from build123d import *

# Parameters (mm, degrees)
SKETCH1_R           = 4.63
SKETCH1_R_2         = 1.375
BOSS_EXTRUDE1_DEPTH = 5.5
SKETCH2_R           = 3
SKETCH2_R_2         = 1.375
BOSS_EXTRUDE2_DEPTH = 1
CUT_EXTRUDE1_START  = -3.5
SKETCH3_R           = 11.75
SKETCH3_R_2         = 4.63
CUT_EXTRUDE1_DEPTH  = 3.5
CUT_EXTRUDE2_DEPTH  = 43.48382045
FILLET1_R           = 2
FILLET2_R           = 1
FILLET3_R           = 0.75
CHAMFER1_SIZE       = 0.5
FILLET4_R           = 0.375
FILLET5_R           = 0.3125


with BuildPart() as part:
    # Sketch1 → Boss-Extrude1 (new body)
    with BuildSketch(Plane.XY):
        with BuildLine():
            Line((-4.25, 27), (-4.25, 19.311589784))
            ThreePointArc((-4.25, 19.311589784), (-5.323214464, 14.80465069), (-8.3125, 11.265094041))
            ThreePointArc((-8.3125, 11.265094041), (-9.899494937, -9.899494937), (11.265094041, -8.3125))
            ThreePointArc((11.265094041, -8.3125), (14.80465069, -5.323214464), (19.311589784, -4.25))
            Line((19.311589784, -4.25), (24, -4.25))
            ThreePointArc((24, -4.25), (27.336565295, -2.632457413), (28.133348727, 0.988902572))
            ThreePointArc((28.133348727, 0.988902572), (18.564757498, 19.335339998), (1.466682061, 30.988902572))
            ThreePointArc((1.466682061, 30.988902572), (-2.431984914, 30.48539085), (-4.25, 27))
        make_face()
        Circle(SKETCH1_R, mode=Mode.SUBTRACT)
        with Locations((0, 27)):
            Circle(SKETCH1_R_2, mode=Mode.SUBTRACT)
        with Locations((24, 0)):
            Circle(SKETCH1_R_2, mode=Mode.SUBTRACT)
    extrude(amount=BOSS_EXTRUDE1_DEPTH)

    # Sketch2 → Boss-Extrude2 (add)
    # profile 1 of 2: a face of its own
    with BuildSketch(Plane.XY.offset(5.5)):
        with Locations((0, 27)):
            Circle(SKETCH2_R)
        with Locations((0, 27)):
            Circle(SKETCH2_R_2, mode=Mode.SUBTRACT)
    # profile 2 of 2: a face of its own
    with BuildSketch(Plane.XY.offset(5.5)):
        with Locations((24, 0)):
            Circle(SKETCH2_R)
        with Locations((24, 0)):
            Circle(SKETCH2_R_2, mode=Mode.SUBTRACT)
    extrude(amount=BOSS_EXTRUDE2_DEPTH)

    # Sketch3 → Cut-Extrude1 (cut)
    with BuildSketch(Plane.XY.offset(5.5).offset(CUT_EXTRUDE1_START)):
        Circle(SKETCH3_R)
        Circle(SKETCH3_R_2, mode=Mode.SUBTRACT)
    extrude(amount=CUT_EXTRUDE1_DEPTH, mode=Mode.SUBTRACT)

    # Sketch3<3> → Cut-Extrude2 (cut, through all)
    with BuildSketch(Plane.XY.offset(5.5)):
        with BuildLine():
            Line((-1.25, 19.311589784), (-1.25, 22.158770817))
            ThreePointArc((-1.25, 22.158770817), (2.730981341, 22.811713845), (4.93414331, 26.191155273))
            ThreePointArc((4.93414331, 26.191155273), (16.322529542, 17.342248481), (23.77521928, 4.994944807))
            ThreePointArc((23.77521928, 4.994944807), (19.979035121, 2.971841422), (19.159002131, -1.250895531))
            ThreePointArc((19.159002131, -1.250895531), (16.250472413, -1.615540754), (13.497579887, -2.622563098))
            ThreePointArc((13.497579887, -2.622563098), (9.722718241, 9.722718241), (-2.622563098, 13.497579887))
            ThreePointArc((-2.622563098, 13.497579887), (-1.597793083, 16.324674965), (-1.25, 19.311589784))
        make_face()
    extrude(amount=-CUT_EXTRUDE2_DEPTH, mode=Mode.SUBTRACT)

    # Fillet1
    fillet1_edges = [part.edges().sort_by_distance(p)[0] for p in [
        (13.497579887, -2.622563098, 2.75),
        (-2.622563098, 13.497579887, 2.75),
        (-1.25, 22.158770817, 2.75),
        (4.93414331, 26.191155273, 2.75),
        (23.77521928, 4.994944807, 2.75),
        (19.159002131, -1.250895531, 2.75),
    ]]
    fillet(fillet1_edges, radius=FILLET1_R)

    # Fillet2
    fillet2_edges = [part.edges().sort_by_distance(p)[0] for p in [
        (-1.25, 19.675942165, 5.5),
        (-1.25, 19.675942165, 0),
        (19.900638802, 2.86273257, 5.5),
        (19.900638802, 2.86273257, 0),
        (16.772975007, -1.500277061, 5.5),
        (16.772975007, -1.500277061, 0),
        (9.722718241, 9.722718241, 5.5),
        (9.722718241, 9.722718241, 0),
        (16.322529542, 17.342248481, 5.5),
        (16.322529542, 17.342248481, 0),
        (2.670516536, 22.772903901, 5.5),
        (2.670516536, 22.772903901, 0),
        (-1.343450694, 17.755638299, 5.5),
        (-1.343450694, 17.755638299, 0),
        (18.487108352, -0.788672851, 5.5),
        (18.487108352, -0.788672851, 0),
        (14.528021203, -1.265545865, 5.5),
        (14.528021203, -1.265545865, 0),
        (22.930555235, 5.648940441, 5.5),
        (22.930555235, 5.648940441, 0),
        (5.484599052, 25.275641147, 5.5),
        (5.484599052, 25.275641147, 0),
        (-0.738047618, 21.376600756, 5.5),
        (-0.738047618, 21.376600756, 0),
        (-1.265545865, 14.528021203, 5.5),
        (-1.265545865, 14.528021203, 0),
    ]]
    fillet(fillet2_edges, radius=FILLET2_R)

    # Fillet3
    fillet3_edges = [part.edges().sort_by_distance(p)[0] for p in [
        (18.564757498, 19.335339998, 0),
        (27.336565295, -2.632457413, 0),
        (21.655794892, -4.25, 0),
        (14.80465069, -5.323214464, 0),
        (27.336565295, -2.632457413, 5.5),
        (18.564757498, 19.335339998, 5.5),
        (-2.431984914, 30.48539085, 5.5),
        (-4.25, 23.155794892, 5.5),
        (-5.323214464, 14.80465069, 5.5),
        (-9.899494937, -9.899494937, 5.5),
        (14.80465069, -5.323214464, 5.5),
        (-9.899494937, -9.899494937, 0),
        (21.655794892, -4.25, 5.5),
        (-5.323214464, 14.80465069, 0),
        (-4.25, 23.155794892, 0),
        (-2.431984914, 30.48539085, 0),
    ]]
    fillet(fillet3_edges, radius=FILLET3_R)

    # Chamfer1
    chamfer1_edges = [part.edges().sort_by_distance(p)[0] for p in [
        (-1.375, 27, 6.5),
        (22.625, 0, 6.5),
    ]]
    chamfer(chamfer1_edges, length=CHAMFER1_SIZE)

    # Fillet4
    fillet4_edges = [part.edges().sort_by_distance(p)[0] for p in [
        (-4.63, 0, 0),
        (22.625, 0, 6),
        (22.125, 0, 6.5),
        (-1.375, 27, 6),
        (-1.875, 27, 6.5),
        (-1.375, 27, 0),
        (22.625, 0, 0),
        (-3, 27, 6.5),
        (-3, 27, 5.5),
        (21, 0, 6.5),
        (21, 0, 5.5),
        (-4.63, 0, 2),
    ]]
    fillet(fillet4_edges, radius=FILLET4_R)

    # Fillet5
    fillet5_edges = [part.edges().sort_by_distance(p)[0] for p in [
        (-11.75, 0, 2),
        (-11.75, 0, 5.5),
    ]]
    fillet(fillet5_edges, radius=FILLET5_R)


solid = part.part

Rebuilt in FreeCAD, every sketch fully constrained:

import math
import FreeCAD as App
import Part
import Sketcher
from FreeCAD import Vector
Q = App.Units.Quantity


def edges_at(feature, points):
    """Names of the edges that pass closest to the given points."""
    edges = feature.Shape.Edges
    near = lambda p: min(range(len(edges)), key=lambda i: edges[i].distToShape(Part.Vertex(*p))[0])
    return sorted({f"Edge{near(p) + 1}" for p in points})

doc = App.newDocument("Part")
body = doc.addObject("PartDesign::Body", "Body")

sketch1 = doc.addObject("Sketcher::SketchObject", "Sketch")
body.addObject(sketch1)
sketch1.AttachmentSupport = (doc.XY_Plane, [""])
sketch1.MapMode = "FlatFace"
sketch1.addGeometry(Part.LineSegment(Vector(-4.2, 27, 0), Vector(-4.2, 19.3, 0)), False)
sketch1.addGeometry(Part.ArcOfCircle(Part.Circle(Vector(-14.2, 19.3, 0), Vector(0, 0, 1), 10), math.radians(-54), math.radians(0)), False)
sketch1.addGeometry(Part.ArcOfCircle(Part.Circle(Vector(0, 0, 0), Vector(0, 0, 1), 14), math.radians(126), math.radians(324)), False)
sketch1.addGeometry(Part.ArcOfCircle(Part.Circle(Vector(19.3, -14.2, 0), Vector(0, 0, 1), 10), math.radians(90), math.radians(144)), False)
sketch1.addGeometry(Part.LineSegment(Vector(19.3, -4.2, 0), Vector(24, -4.2, 0)), False)
sketch1.addGeometry(Part.ArcOfCircle(Part.Circle(Vector(24, 0, 0), Vector(0, 0, 1), 4.2), math.radians(-90), math.radians(13)), False)
sketch1.addGeometry(Part.ArcOfCircle(Part.Circle(Vector(-13.2, -8.9, 0), Vector(0, 0, 1), 42.5), math.radians(13), math.radians(70)), False)
sketch1.addGeometry(Part.ArcOfCircle(Part.Circle(Vector(0, 27, 0), Vector(0, 0, 1), 4.2), math.radians(70), math.radians(180)), False)
sketch1.addGeometry(Part.Circle(Vector(0, 0, 0), Vector(0, 0, 1), 4.6), False)
sketch1.addGeometry(Part.Circle(Vector(24, 0, 0), Vector(0, 0, 1), 1.4), False)
sketch1.addGeometry(Part.Circle(Vector(0, 27, 0), Vector(0, 0, 1), 1.4), False)
sketch1.addConstraint(Sketcher.Constraint("Tangent", 0, 2, 1, 2))
sketch1.addConstraint(Sketcher.Constraint("Tangent", 1, 1, 2, 1))
sketch1.addConstraint(Sketcher.Constraint("Tangent", 2, 2, 3, 2))
sketch1.addConstraint(Sketcher.Constraint("Tangent", 3, 1, 4, 1))
sketch1.addConstraint(Sketcher.Constraint("Tangent", 4, 2, 5, 1))
sketch1.addConstraint(Sketcher.Constraint("Tangent", 5, 2, 6, 1))
sketch1.addConstraint(Sketcher.Constraint("Tangent", 6, 2, 7, 1))
sketch1.addConstraint(Sketcher.Constraint("Tangent", 7, 2, 0, 1))
sketch1.addConstraint(Sketcher.Constraint("Vertical", 0))
sketch1.addConstraint(Sketcher.Constraint("Horizontal", 4))
sketch1.addConstraint(Sketcher.Constraint("Coincident", 2, 3, -1, 1))
sketch1.addConstraint(Sketcher.Constraint("Coincident", 8, 3, -1, 1))
sketch1.addConstraint(Sketcher.Constraint("Coincident", 9, 3, 5, 3))
sketch1.addConstraint(Sketcher.Constraint("Coincident", 10, 3, 7, 3))
sketch1.addConstraint(Sketcher.Constraint("Equal", 1, 3))
sketch1.addConstraint(Sketcher.Constraint("Equal", 5, 7))
sketch1.addConstraint(Sketcher.Constraint("Equal", 9, 10))
sketch1.addConstraint(Sketcher.Constraint("PointOnObject", 5, 3, -1))
sketch1.addConstraint(Sketcher.Constraint("PointOnObject", 7, 3, -2))
sketch1.addConstraint(Sketcher.Constraint("Radius", 1, Q("10 mm")))
sketch1.addConstraint(Sketcher.Constraint("Radius", 2, Q("14 mm")))
sketch1.addConstraint(Sketcher.Constraint("Radius", 6, Q("42.5 mm")))
sketch1.addConstraint(Sketcher.Constraint("Diameter", 8, Q("9.26 mm")))
sketch1.addConstraint(Sketcher.Constraint("Diameter", 9, Q("2.75 mm")))
sketch1.addConstraint(Sketcher.Constraint("Radius", 5, Q("4.25 mm")))
sketch1.addConstraint(Sketcher.Constraint("DistanceX", -1, 1, 5, 3, Q("24 mm")))
sketch1.addConstraint(Sketcher.Constraint("DistanceY", -1, 1, 7, 3, Q("27 mm")))
pad1 = doc.addObject("PartDesign::Pad", "Pad")
body.addObject(pad1)
pad1.Profile = sketch1
pad1.Length = 5.5

sketch2 = doc.addObject("Sketcher::SketchObject", "Sketch001")
body.addObject(sketch2)
sketch2.AttachmentSupport = (doc.XY_Plane, [""])
sketch2.MapMode = "FlatFace"
sketch2.AttachmentOffset = App.Placement(Vector(0, 0, 5.5), App.Rotation())
sketch2.addGeometry(Part.Circle(Vector(0, 27, 0), Vector(0, 0, 1), 3), False)
sketch2.addGeometry(Part.Circle(Vector(0, 27, 0), Vector(0, 0, 1), 1.4), False)
sketch2.addGeometry(Part.Circle(Vector(24, 0, 0), Vector(0, 0, 1), 3), False)
sketch2.addGeometry(Part.Circle(Vector(24, 0, 0), Vector(0, 0, 1), 1.4), False)
sketch2.addConstraint(Sketcher.Constraint("Coincident", 1, 3, 0, 3))
sketch2.addConstraint(Sketcher.Constraint("Coincident", 3, 3, 2, 3))
sketch2.addConstraint(Sketcher.Constraint("Equal", 0, 2))
sketch2.addConstraint(Sketcher.Constraint("Equal", 1, 3))
sketch2.addConstraint(Sketcher.Constraint("PointOnObject", 0, 3, -2))
sketch2.addConstraint(Sketcher.Constraint("PointOnObject", 2, 3, -1))
sketch2.addConstraint(Sketcher.Constraint("Diameter", 0, Q("6 mm")))
sketch2.addConstraint(Sketcher.Constraint("Diameter", 1, Q("2.75 mm")))
sketch2.addConstraint(Sketcher.Constraint("DistanceY", -1, 1, 0, 3, Q("27 mm")))
sketch2.addConstraint(Sketcher.Constraint("DistanceX", -1, 1, 2, 3, Q("24 mm")))
pad2 = doc.addObject("PartDesign::Pad", "Pad001")
body.addObject(pad2)
pad2.Profile = sketch2
pad2.Length = 1

sketch3 = doc.addObject("Sketcher::SketchObject", "Sketch002")
body.addObject(sketch3)
sketch3.AttachmentSupport = (doc.XY_Plane, [""])
sketch3.MapMode = "FlatFace"
sketch3.AttachmentOffset = App.Placement(Vector(0, 0, 2), App.Rotation())
sketch3.addGeometry(Part.Circle(Vector(0, 0, 0), Vector(0, 0, 1), 11.8), False)
sketch3.addGeometry(Part.Circle(Vector(0, 0, 0), Vector(0, 0, 1), 4.6), False)
sketch3.addConstraint(Sketcher.Constraint("Coincident", 0, 3, -1, 1))
sketch3.addConstraint(Sketcher.Constraint("Coincident", 1, 3, -1, 1))
sketch3.addConstraint(Sketcher.Constraint("Diameter", 0, Q("23.5 mm")))
sketch3.addConstraint(Sketcher.Constraint("Diameter", 1, Q("9.26 mm")))
pocket1 = doc.addObject("PartDesign::Pocket", "Pocket")
body.addObject(pocket1)
pocket1.Profile = sketch3
pocket1.Length = 3.5
pocket1.Reversed = True

sketch4 = doc.addObject("Sketcher::SketchObject", "Sketch003")
body.addObject(sketch4)
sketch4.AttachmentSupport = (doc.XY_Plane, [""])
sketch4.MapMode = "FlatFace"
sketch4.AttachmentOffset = App.Placement(Vector(0, 0, 5.5), App.Rotation())
sketch4.addGeometry(Part.LineSegment(Vector(-1.2, 22.2, 0), Vector(-1.2, 19.3, 0)), False)
sketch4.addGeometry(Part.ArcOfCircle(Part.Circle(Vector(-14.2, 19.3, 0), Vector(0, 0, 1), 13), math.radians(-27), math.radians(0)), False)
sketch4.addGeometry(Part.ArcOfCircle(Part.Circle(Vector(0, 0, 0), Vector(0, 0, 1), 13.8), math.radians(-11), math.radians(101)), False)
sketch4.addGeometry(Part.ArcOfCircle(Part.Circle(Vector(19.3, -14.2, 0), Vector(0, 0, 1), 13), math.radians(91), math.radians(117)), False)
sketch4.addGeometry(Part.ArcOfCircle(Part.Circle(Vector(24, 0, 0), Vector(0, 0, 1), 5), math.radians(93), math.radians(194)), False)
sketch4.addGeometry(Part.ArcOfCircle(Part.Circle(Vector(-13.2, -8.9, 0), Vector(0, 0, 1), 39.5), math.radians(21), math.radians(63)), False)
sketch4.addGeometry(Part.ArcOfCircle(Part.Circle(Vector(0, 27, 0), Vector(0, 0, 1), 5), math.radians(-104), math.radians(-9)), False)
sketch4.addConstraint(Sketcher.Constraint("Tangent", 0, 2, 1, 2))
sketch4.addConstraint(Sketcher.Constraint("Coincident", 1, 1, 2, 2))
sketch4.addConstraint(Sketcher.Constraint("Coincident", 2, 1, 3, 2))
sketch4.addConstraint(Sketcher.Constraint("Coincident", 3, 1, 4, 2))
sketch4.addConstraint(Sketcher.Constraint("Coincident", 4, 1, 5, 1))
sketch4.addConstraint(Sketcher.Constraint("Coincident", 5, 2, 6, 2))
sketch4.addConstraint(Sketcher.Constraint("Coincident", 6, 1, 0, 1))
sketch4.addConstraint(Sketcher.Constraint("Vertical", 0))
sketch4.addConstraint(Sketcher.Constraint("Coincident", 2, 3, -1, 1))
sketch4.addConstraint(Sketcher.Constraint("Equal", 1, 3))
sketch4.addConstraint(Sketcher.Constraint("Equal", 4, 6))
sketch4.addConstraint(Sketcher.Constraint("PointOnObject", 4, 3, -1))
sketch4.addConstraint(Sketcher.Constraint("PointOnObject", 6, 3, -2))
sketch4.addConstraint(Sketcher.Constraint("Radius", 1, Q("13 mm")))
sketch4.addConstraint(Sketcher.Constraint("Radius", 4, Q("5 mm")))
sketch4.addConstraint(Sketcher.Constraint("Radius", 5, Q("39.5 mm")))
sketch4.addConstraint(Sketcher.Constraint("Radius", 2, Q("13.75 mm")))
sketch4.addConstraint(Sketcher.Constraint("DistanceX", -1, 1, 4, 3, Q("24 mm")))
sketch4.addConstraint(Sketcher.Constraint("DistanceY", -1, 1, 6, 3, Q("27 mm")))
sketch4.addConstraint(Sketcher.Constraint("DistanceX", 1, 3, -1, 1, Q("14.25 mm")))
sketch4.addConstraint(Sketcher.Constraint("DistanceY", 3, 3, -1, 1, Q("14.25 mm")))
sketch4.addConstraint(Sketcher.Constraint("DistanceY", 0, 2, 0, 1, Q("2.847181 mm")))
sketch4.addConstraint(Sketcher.Constraint("DistanceX", -1, 1, 3, 3, Q("19.31159 mm")))
sketch4.addConstraint(Sketcher.Constraint("DistanceX", 5, 3, -1, 1, Q("13.200139 mm")))
sketch4.addConstraint(Sketcher.Constraint("DistanceX", -1, 1, 4, 1, Q("23.775219 mm")))
pocket2 = doc.addObject("PartDesign::Pocket", "Pocket001")
body.addObject(pocket2)
pocket2.Profile = sketch4
pocket2.Type = "ThroughAll"
doc.recompute()

fillet = doc.addObject("PartDesign::Fillet", "Fillet")
body.addObject(fillet)
fillet.Base = (pocket2, edges_at(pocket2, [
    (13.498, -2.623, 2.75),
    (-2.623, 13.498, 2.75),
    (-1.25, 22.159, 2.75),
    (4.934, 26.191, 2.75),
    (23.775, 4.995, 2.75),
    (19.159, -1.251, 2.75),
]))
fillet.Radius = 2
doc.recompute()

fillet2 = doc.addObject("PartDesign::Fillet", "Fillet001")
body.addObject(fillet2)
fillet2.Base = (fillet, edges_at(fillet, [
    (-1.25, 19.676, 5.5),
    (-1.25, 19.676, 0),
    (19.901, 2.863, 5.5),
    (19.901, 2.863, 0),
    (16.773, -1.5, 5.5),
    (16.773, -1.5, 0),
    (9.723, 9.723, 5.5),
    (9.723, 9.723, 0),
    (16.323, 17.342, 5.5),
    (16.323, 17.342, 0),
    (2.671, 22.773, 5.5),
    (2.671, 22.773, 0),
    (-1.343, 17.756, 5.5),
    (-1.343, 17.756, 0),
    (18.487, -0.789, 5.5),
    (18.487, -0.789, 0),
    (14.528, -1.266, 5.5),
    (14.528, -1.266, 0),
    (22.931, 5.649, 5.5),
    (22.931, 5.649, 0),
    (5.485, 25.276, 5.5),
    (5.485, 25.276, 0),
    (-0.738, 21.377, 5.5),
    (-0.738, 21.377, 0),
    (-1.266, 14.528, 5.5),
    (-1.266, 14.528, 0),
]))
fillet2.Radius = 1
doc.recompute()

fillet3 = doc.addObject("PartDesign::Fillet", "Fillet002")
body.addObject(fillet3)
fillet3.Base = (fillet2, edges_at(fillet2, [
    (18.565, 19.335, 0),
    (27.337, -2.632, 0),
    (21.656, -4.25, 0),
    (14.805, -5.323, 0),
    (27.337, -2.632, 5.5),
    (18.565, 19.335, 5.5),
    (-2.432, 30.485, 5.5),
    (-4.25, 23.156, 5.5),
    (-5.323, 14.805, 5.5),
    (-9.899, -9.899, 5.5),
    (14.805, -5.323, 5.5),
    (-9.899, -9.899, 0),
    (21.656, -4.25, 5.5),
    (-5.323, 14.805, 0),
    (-4.25, 23.156, 0),
    (-2.432, 30.485, 0),
]))
fillet3.Radius = 0.75
doc.recompute()

chamfer = doc.addObject("PartDesign::Chamfer", "Chamfer")
body.addObject(chamfer)
chamfer.Base = (fillet3, edges_at(fillet3, [(-1.375, 27, 6.5), (22.625, 0, 6.5)]))
chamfer.Size = 0.5
doc.recompute()

fillet4 = doc.addObject("PartDesign::Fillet", "Fillet003")
body.addObject(fillet4)
fillet4.Base = (chamfer, edges_at(chamfer, [
    (-4.63, 0, 0),
    (22.625, 0, 6),
    (22.125, 0, 6.5),
    (-1.375, 27, 6),
    (-1.875, 27, 6.5),
    (-1.375, 27, 0),
    (22.625, 0, 0),
    (-3, 27, 6.5),
    (-3, 27, 5.5),
    (21, 0, 6.5),
    (21, 0, 5.5),
    (-4.63, 0, 2),
]))
fillet4.Radius = 0.375
doc.recompute()

fillet5 = doc.addObject("PartDesign::Fillet", "Fillet004")
body.addObject(fillet5)
fillet5.Base = (fillet4, edges_at(fillet4, [(-11.75, 0, 2), (-11.75, 0, 5.5)]))
fillet5.Radius = 0.3125

doc.recompute()
